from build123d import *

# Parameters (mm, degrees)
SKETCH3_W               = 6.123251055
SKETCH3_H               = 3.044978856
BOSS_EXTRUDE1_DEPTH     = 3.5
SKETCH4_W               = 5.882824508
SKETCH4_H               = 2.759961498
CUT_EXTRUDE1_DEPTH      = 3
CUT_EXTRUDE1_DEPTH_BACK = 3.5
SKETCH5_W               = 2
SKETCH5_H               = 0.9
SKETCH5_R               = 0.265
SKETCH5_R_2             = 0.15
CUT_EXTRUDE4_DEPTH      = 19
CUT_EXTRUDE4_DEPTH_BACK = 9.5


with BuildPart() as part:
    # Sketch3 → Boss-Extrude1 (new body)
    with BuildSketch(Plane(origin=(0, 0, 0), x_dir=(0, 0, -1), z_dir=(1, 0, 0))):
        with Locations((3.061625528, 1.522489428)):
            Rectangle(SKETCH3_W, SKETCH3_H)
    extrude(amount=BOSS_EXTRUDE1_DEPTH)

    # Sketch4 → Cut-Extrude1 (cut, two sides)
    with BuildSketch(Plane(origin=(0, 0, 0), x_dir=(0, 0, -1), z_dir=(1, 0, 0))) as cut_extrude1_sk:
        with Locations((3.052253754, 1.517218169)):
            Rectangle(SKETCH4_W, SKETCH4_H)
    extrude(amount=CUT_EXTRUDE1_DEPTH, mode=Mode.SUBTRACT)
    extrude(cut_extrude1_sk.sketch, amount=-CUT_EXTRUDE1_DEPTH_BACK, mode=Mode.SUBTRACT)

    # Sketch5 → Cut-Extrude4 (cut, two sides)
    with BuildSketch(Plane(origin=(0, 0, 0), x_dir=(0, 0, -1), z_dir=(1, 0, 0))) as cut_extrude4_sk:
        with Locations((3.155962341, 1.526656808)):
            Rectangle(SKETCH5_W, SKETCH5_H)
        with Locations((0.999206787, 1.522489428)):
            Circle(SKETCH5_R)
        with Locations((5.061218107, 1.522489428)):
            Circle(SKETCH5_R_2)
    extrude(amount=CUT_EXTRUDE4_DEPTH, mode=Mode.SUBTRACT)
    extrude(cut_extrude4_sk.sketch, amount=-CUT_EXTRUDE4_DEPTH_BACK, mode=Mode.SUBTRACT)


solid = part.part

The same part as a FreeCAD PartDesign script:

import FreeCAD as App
import Part
import Sketcher
Q = App.Units.Quantity

doc = App.newDocument("Part")
params = doc.addObject("Spreadsheet::Sheet", "Params")
for row, (alias, value) in enumerate([
    ("pad1_length", "3.5 mm"),
    ("pocket1_length", "3 mm"),
    ("pocket1_length2", "3.5 mm"),
    ("sketch3_diameter", "0.3 mm"),
    ("sketch3_diameter2", "0.53 mm"),
    ("sketch3_height", "2 mm"),
    ("sketch3_width", "0.9 mm"),
], start=1):
    params.set(f"A{row}", alias)
    params.set(f"B{row}", "=" + value)
    params.setAlias(f"B{row}", alias)

body = doc.addObject("PartDesign::Body", "Body")

# Sketch on YZ plane
sketch1 = body.newObject("Sketcher::SketchObject", "Sketch")
sketch1.AttachmentSupport = (doc.getObject("YZ_Plane"), [""])
sketch1.MapMode = "FlatFace"
sketch1.addGeometry(Part.LineSegment(App.Vector(3, 0, 0), App.Vector(0, 0, 0)), False)
sketch1.addGeometry(Part.LineSegment(App.Vector(0, 0, 0), App.Vector(0, -6.1, 0)), False)
sketch1.addGeometry(Part.LineSegment(App.Vector(0, -6.1, 0), App.Vector(3, -6.1, 0)), False)
sketch1.addGeometry(Part.LineSegment(App.Vector(3, -6.1, 0), App.Vector(3, 0, 0)), False)
sketch1.addConstraint(Sketcher.Constraint("Coincident", 0, 2, 1, 1))
sketch1.addConstraint(Sketcher.Constraint("Coincident", 1, 2, 2, 1))
sketch1.addConstraint(Sketcher.Constraint("Coincident", 2, 2, 3, 1))
sketch1.addConstraint(Sketcher.Constraint("Coincident", 3, 2, 0, 1))
sketch1.addConstraint(Sketcher.Constraint("Horizontal", 0))
sketch1.addConstraint(Sketcher.Constraint("Vertical", 1))
sketch1.addConstraint(Sketcher.Constraint("Horizontal", 2))
sketch1.addConstraint(Sketcher.Constraint("Vertical", 3))
sketch1.addConstraint(Sketcher.Constraint("Coincident", 0, 2, -1, 1))
sketch1.addConstraint(Sketcher.Constraint("DistanceX", 0, 2, 0, 1, Q("3.044979 mm")))
sketch1.addConstraint(Sketcher.Constraint("DistanceY", 1, 2, 1, 1, Q("6.123251 mm")))
pad1 = body.newObject("PartDesign::Pad", "Pad")
pad1.Profile = sketch1
pad1.setExpression("Length", "Params.pad1_length")

# Sketch on YZ plane
sketch2 = body.newObject("Sketcher::SketchObject", "Sketch001")
sketch2.AttachmentSupport = (doc.getObject("YZ_Plane"), [""])
sketch2.MapMode = "FlatFace"
sketch2.addGeometry(Part.LineSegment(App.Vector(2.9, -0.1, 0), App.Vector(0.1, -0.1, 0)), False)
sketch2.addGeometry(Part.LineSegment(App.Vector(0.1, -0.1, 0), App.Vector(0.1, -6, 0)), False)
sketch2.addGeometry(Part.LineSegment(App.Vector(0.1, -6, 0), App.Vector(2.9, -6, 0)), False)
sketch2.addGeometry(Part.LineSegment(App.Vector(2.9, -6, 0), App.Vector(2.9, -0.1, 0)), False)
sketch2.addConstraint(Sketcher.Constraint("Coincident", 0, 2, 1, 1))
sketch2.addConstraint(Sketcher.Constraint("Coincident", 1, 2, 2, 1))
sketch2.addConstraint(Sketcher.Constraint("Coincident", 2, 2, 3, 1))
sketch2.addConstraint(Sketcher.Constraint("Coincident", 3, 2, 0, 1))
sketch2.addConstraint(Sketcher.Constraint("Horizontal", 0))
sketch2.addConstraint(Sketcher.Constraint("Vertical", 1))
sketch2.addConstraint(Sketcher.Constraint("Horizontal", 2))
sketch2.addConstraint(Sketcher.Constraint("Vertical", 3))
sketch2.addConstraint(Sketcher.Constraint("DistanceX", 0, 2, 0, 1, Q("2.759961 mm")))
sketch2.addConstraint(Sketcher.Constraint("DistanceX", -1, 1, 2, 2, Q("2.897199 mm")))
sketch2.addConstraint(Sketcher.Constraint("DistanceY", 1, 2, 1, 1, Q("5.882825 mm")))
sketch2.addConstraint(Sketcher.Constraint("DistanceY", 0, 2, -1, 1, Q("0.110841 mm")))
pocket1 = body.newObject("PartDesign::Pocket", "Pocket")
pocket1.Profile = sketch2
pocket1.Type = "TwoLengths"
pocket1.setExpression("Length", "Params.pocket1_length")
pocket1.setExpression("Length2", "Params.pocket1_length2")
pocket1.Reversed = True

# Sketch on YZ plane
sketch3 = body.newObject("Sketcher::SketchObject", "Sketch002")
sketch3.AttachmentSupport = (doc.getObject("YZ_Plane"), [""])
sketch3.MapMode = "FlatFace"
sketch3.addGeometry(Part.LineSegment(App.Vector(1.98, -2.16, 0), App.Vector(1.08, -2.16, 0)), False)
sketch3.addGeometry(Part.LineSegment(App.Vector(1.08, -2.16, 0), App.Vector(1.08, -4.16, 0)), False)
sketch3.addGeometry(Part.LineSegment(App.Vector(1.08, -4.16, 0), App.Vector(1.98, -4.16, 0)), False)
sketch3.addGeometry(Part.LineSegment(App.Vector(1.98, -4.16, 0), App.Vector(1.98, -2.16, 0)), False)
sketch3.addGeometry(Part.Circle(App.Vector(1.52, -1, 0), App.Vector(0, 0, 1), 0.27), False)
sketch3.addGeometry(Part.Circle(App.Vector(1.52, -5.06, 0), App.Vector(0, 0, 1), 0.15), False)
sketch3.addConstraint(Sketcher.Constraint("Coincident", 0, 2, 1, 1))
sketch3.addConstraint(Sketcher.Constraint("Coincident", 1, 2, 2, 1))
sketch3.addConstraint(Sketcher.Constraint("Coincident", 2, 2, 3, 1))
sketch3.addConstraint(Sketcher.Constraint("Coincident", 3, 2, 0, 1))
sketch3.addConstraint(Sketcher.Constraint("Horizontal", 0))
sketch3.addConstraint(Sketcher.Constraint("Vertical", 1))
sketch3.addConstraint(Sketcher.Constraint("Horizontal", 2))
sketch3.addConstraint(Sketcher.Constraint("Vertical", 3))
sketch3.addConstraint(Sketcher.Constraint("Vertical", 4, 3, 5, 3))
sketch3.addConstraint(Sketcher.Constraint("Diameter", 5, Q("0.3 mm")))
sketch3.addConstraint(Sketcher.Constraint("Diameter", 4, Q("0.53 mm")))
sketch3.addConstraint(Sketcher.Constraint("DistanceY", 1, 2, 1, 1, Q("2 mm")))
sketch3.addConstraint(Sketcher.Constraint("DistanceX", 0, 2, 0, 1, Q("0.9 mm")))
sketch3.addConstraint(Sketcher.Constraint("DistanceX", -1, 1, 4, 3, Q("1.522489 mm")))
sketch3.addConstraint(Sketcher.Constraint("DistanceY", 5, 3, -1, 1, Q("5.061218 mm")))
sketch3.addConstraint(Sketcher.Constraint("DistanceY", 5, 3, 4, 3, Q("4.062011 mm")))
sketch3.addConstraint(Sketcher.Constraint("DistanceX", -1, 1, 0, 2, Q("1.076657 mm")))
sketch3.addConstraint(Sketcher.Constraint("DistanceY", 0, 2, -1, 1, Q("2.155962 mm")))
sketch3.setExpression("Constraints[9]", "Params.sketch3_diameter")
sketch3.setExpression("Constraints[10]", "Params.sketch3_diameter2")
sketch3.setExpression("Constraints[11]", "Params.sketch3_height")
sketch3.setExpression("Constraints[12]", "Params.sketch3_width")
pocket2 = body.newObject("PartDesign::Pocket", "Pocket001")
pocket2.Profile = sketch3
pocket2.Type = "ThroughAll"
pocket2.Midplane = True

doc.recompute()
